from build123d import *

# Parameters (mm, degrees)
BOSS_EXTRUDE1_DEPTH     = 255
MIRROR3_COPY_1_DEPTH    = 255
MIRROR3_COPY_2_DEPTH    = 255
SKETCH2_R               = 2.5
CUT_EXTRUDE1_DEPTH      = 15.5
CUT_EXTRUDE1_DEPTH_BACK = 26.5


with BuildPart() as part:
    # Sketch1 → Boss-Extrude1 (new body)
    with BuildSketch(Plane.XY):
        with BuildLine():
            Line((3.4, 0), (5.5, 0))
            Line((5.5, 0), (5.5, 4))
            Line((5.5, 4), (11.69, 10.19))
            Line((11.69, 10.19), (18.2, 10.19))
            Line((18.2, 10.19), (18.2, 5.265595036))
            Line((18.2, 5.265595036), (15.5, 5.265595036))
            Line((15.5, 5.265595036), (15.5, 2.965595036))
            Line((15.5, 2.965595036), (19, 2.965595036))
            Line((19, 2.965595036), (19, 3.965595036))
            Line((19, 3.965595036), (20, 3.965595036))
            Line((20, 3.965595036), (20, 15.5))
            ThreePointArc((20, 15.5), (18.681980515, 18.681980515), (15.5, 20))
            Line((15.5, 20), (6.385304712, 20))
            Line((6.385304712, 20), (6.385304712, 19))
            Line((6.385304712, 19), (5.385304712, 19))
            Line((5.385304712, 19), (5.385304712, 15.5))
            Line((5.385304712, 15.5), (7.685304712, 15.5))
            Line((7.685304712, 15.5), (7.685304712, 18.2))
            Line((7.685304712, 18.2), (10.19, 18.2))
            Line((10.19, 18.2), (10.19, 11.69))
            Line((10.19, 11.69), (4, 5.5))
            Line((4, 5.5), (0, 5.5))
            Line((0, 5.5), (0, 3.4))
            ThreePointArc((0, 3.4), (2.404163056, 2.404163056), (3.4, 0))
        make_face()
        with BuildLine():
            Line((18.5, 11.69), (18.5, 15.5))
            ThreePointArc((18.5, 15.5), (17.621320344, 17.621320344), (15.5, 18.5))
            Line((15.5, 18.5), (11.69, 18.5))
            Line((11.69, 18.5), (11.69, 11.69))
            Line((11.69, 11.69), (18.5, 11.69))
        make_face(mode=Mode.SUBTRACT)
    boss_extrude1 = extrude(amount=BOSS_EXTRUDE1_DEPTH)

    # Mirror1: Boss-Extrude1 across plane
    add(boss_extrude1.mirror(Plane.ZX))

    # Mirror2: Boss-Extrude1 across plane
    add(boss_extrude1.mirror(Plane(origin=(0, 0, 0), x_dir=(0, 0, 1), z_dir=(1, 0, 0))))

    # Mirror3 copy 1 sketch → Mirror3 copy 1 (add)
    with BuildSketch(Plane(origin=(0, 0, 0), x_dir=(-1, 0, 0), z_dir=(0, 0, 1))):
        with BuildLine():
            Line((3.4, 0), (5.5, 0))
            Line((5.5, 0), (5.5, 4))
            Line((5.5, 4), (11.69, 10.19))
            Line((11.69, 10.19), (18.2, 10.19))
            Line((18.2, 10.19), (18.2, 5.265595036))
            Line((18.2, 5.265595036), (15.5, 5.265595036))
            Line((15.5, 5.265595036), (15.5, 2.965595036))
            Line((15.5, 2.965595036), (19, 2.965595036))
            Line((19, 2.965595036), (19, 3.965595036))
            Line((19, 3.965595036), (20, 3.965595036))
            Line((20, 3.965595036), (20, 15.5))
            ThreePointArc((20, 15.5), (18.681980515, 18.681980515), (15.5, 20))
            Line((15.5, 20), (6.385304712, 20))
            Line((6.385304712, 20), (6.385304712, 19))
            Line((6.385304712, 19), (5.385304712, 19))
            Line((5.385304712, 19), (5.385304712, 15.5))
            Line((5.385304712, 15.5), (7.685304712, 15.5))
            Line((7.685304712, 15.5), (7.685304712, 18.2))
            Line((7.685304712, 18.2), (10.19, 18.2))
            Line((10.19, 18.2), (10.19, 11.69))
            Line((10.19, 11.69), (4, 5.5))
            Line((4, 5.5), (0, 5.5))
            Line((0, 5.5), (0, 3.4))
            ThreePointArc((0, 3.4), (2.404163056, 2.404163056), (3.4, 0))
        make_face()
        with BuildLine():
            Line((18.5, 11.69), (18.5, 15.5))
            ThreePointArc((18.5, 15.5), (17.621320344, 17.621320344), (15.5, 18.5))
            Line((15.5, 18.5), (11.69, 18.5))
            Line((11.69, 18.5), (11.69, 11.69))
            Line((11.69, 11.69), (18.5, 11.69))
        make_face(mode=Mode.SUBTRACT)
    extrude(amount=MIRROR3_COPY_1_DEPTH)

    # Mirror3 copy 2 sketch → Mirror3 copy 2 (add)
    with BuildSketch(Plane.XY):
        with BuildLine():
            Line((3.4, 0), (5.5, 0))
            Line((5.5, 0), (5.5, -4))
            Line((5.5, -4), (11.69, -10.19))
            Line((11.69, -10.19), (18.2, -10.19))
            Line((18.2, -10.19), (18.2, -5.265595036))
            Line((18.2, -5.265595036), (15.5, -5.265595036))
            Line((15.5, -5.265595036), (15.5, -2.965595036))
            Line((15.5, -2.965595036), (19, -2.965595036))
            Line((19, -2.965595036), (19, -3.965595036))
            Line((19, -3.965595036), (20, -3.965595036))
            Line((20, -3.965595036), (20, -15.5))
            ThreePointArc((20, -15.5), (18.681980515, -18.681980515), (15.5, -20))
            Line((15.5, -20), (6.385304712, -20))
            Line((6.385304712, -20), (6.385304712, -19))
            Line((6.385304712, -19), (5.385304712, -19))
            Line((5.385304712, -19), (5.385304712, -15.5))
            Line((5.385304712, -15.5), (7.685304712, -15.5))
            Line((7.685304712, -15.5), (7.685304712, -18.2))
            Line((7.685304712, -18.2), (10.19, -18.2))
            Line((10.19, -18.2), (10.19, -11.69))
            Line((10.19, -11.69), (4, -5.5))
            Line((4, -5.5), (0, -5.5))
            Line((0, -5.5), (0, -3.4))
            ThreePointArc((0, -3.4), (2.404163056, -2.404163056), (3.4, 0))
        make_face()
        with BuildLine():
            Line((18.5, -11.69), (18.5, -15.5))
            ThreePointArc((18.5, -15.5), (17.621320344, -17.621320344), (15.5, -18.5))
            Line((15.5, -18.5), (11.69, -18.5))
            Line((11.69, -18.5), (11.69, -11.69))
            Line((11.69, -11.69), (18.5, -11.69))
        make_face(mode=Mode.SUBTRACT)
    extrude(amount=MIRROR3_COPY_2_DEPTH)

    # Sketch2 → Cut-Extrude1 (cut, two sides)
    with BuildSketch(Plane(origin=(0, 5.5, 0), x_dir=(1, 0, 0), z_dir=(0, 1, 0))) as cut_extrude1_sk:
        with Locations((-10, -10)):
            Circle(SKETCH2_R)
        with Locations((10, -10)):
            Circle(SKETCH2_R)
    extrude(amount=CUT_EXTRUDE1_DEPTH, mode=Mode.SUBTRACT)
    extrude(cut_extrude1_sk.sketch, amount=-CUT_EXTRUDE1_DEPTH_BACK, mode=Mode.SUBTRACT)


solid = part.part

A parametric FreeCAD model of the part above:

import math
import FreeCAD as App
import Part
import Sketcher
from FreeCAD import Vector
Q = App.Units.Quantity

doc = App.newDocument("Part")
params = doc.addObject("Spreadsheet::Sheet", "Params")
for row, (alias, value) in enumerate([
    ("sketch1_radius", "3 mm"),
    ("sketch1_radius2", "4.5 mm"),
    ("sketch1_radius3", "3.4 mm"),
    ("sketch1_width", "1 mm"),
    ("sketch1_width2", "4 mm"),
    ("pad1_length", "255 mm"),
    ("sketch2_radius", "3 mm"),
    ("sketch2_radius2", "4.5 mm"),
    ("sketch2_radius3", "3.4 mm"),
    ("sketch2_width", "1 mm"),
    ("sketch2_width2", "4 mm"),
    ("pad2_length", "255 mm"),
    ("sketch3_radius", "3 mm"),
    ("sketch3_radius2", "3.4 mm"),
    ("sketch3_radius3", "4.5 mm"),
    ("sketch3_width", "4 mm"),
    ("sketch3_width2", "1 mm"),
    ("pad3_length", "255 mm"),
    ("sketch4_diameter", "5 mm"),
], start=1):
    params.set(f"A{row}", alias)
    params.set(f"B{row}", "=" + value)
    params.setAlias(f"B{row}", alias)

body = doc.addObject("PartDesign::Body", "Body")

# Sketch on XY plane
sketch1 = body.newObject("Sketcher::SketchObject", "Sketch")
sketch1.AttachmentSupport = (doc.getObject("XY_Plane"), [""])
sketch1.MapMode = "FlatFace"
sketch1.addGeometry(Part.LineSegment(Vector(3.4, 0, 0), Vector(5.5, 0, 0)), False)
sketch1.addGeometry(Part.LineSegment(Vector(5.5, 0, 0), Vector(5.5, 4, 0)), False)
sketch1.addGeometry(Part.LineSegment(Vector(5.5, 4, 0), Vector(11.7, 10.2, 0)), False)
sketch1.addGeometry(Part.LineSegment(Vector(11.7, 10.2, 0), Vector(18.2, 10.2, 0)), False)
sketch1.addGeometry(Part.LineSegment(Vector(18.2, 10.2, 0), Vector(18.2, 5.3, 0)), False)
sketch1.addGeometry(Part.LineSegment(Vector(18.2, 5.3, 0), Vector(15.5, 5.3, 0)), False)
sketch1.addGeometry(Part.LineSegment(Vector(15.5, 5.3, 0), Vector(15.5, 3, 0)), False)
sketch1.addGeometry(Part.LineSegment(Vector(15.5, 3, 0), Vector(19, 3, 0)), False)
sketch1.addGeometry(Part.LineSegment(Vector(19, 3, 0), Vector(19, 4, 0)), False)
sketch1.addGeometry(Part.LineSegment(Vector(19, 4, 0), Vector(20, 4, 0)), False)
sketch1.addGeometry(Part.LineSegment(Vector(20, 4, 0), Vector(20, 15.5, 0)), False)
sketch1.addGeometry(Part.ArcOfCircle(Part.Circle(Vector(15.5, 15.5, 0), Vector(0, 0, 1), 4.5), math.radians(0), math.radians(90)), False)
sketch1.addGeometry(Part.LineSegment(Vector(15.5, 20, 0), Vector(6.4, 20, 0)), False)
sketch1.addGeometry(Part.LineSegment(Vector(6.4, 20, 0), Vector(6.4, 19, 0)), False)
sketch1.addGeometry(Part.LineSegment(Vector(6.4, 19, 0), Vector(5.4, 19, 0)), False)
sketch1.addGeometry(Part.LineSegment(Vector(5.4, 19, 0), Vector(5.4, 15.5, 0)), False)
sketch1.addGeometry(Part.LineSegment(Vector(5.4, 15.5, 0), Vector(7.7, 15.5, 0)), False)
sketch1.addGeometry(Part.LineSegment(Vector(7.7, 15.5, 0), Vector(7.7, 18.2, 0)), False)
sketch1.addGeometry(Part.LineSegment(Vector(7.7, 18.2, 0), Vector(10.2, 18.2, 0)), False)
sketch1.addGeometry(Part.LineSegment(Vector(10.2, 18.2, 0), Vector(10.2, 11.7, 0)), False)
sketch1.addGeometry(Part.LineSegment(Vector(10.2, 11.7, 0), Vector(4, 5.5, 0)), False)
sketch1.addGeometry(Part.LineSegment(Vector(4, 5.5, 0), Vector(0, 5.5, 0)), False)
sketch1.addGeometry(Part.LineSegment(Vector(0, 5.5, 0), Vector(0, 3.4, 0)), False)
sketch1.addGeometry(Part.ArcOfCircle(Part.Circle(Vector(0, 0, 0), Vector(0, 0, 1), 3.4), math.radians(0), math.radians(90)), False)
sketch1.addGeometry(Part.LineSegment(Vector(18.5, 15.5, 0), Vector(18.5, 11.7, 0)), False)
sketch1.addGeometry(Part.LineSegment(Vector(18.5, 11.7, 0), Vector(11.7, 11.7, 0)), False)
sketch1.addGeometry(Part.LineSegment(Vector(11.7, 11.7, 0), Vector(11.7, 18.5, 0)), False)
sketch1.addGeometry(Part.LineSegment(Vector(11.7, 18.5, 0), Vector(15.5, 18.5, 0)), False)
sketch1.addGeometry(Part.ArcOfCircle(Part.Circle(Vector(15.5, 15.5, 0), Vector(0, 0, 1), 3), math.radians(0), math.radians(90)), False)
sketch1.addConstraint(Sketcher.Constraint("Coincident", 0, 2, 1, 1))
sketch1.addConstraint(Sketcher.Constraint("Coincident", 1, 2, 2, 1))
sketch1.addConstraint(Sketcher.Constraint("Coincident", 2, 2, 3, 1))
sketch1.addConstraint(Sketcher.Constraint("Coincident", 3, 2, 4, 1))
sketch1.addConstraint(Sketcher.Constraint("Coincident", 4, 2, 5, 1))
sketch1.addConstraint(Sketcher.Constraint("Coincident", 5, 2, 6, 1))
sketch1.addConstraint(Sketcher.Constraint("Coincident", 6, 2, 7, 1))
sketch1.addConstraint(Sketcher.Constraint("Coincident", 7, 2, 8, 1))
sketch1.addConstraint(Sketcher.Constraint("Coincident", 8, 2, 9, 1))
sketch1.addConstraint(Sketcher.Constraint("Coincident", 9, 2, 10, 1))
sketch1.addConstraint(Sketcher.Constraint("Tangent", 10, 2, 11, 1))
sketch1.addConstraint(Sketcher.Constraint("Tangent", 11, 2, 12, 1))
sketch1.addConstraint(Sketcher.Constraint("Coincident", 12, 2, 13, 1))
sketch1.addConstraint(Sketcher.Constraint("Coincident", 13, 2, 14, 1))
sketch1.addConstraint(Sketcher.Constraint("Coincident", 14, 2, 15, 1))
sketch1.addConstraint(Sketcher.Constraint("Coincident", 15, 2, 16, 1))
sketch1.addConstraint(Sketcher.Constraint("Coincident", 16, 2, 17, 1))
sketch1.addConstraint(Sketcher.Constraint("Coincident", 17, 2, 18, 1))
sketch1.addConstraint(Sketcher.Constraint("Coincident", 18, 2, 19, 1))
sketch1.addConstraint(Sketcher.Constraint("Coincident", 19, 2, 20, 1))
sketch1.addConstraint(Sketcher.Constraint("Coincident", 20, 2, 21, 1))
sketch1.addConstraint(Sketcher.Constraint("Coincident", 21, 2, 22, 1))
sketch1.addConstraint(Sketcher.Constraint("Coincident", 22, 2, 23, 2))
sketch1.addConstraint(Sketcher.Constraint("Coincident", 23, 1, 0, 1))
sketch1.addConstraint(Sketcher.Constraint("Coincident", 24, 2, 25, 1))
sketch1.addConstraint(Sketcher.Constraint("Coincident", 25, 2, 26, 1))
sketch1.addConstraint(Sketcher.Constraint("Coincident", 26, 2, 27, 1))
sketch1.addConstraint(Sketcher.Constraint("Tangent", 27, 2, 28, 2))
sketch1.addConstraint(Sketcher.Constraint("Tangent", 28, 1, 24, 1))
sketch1.addConstraint(Sketcher.Constraint("Horizontal", 0))
sketch1.addConstraint(Sketcher.Constraint("Vertical", 1))
sketch1.addConstraint(Sketcher.Constraint("Horizontal", 3))
sketch1.addConstraint(Sketcher.Constraint("Vertical", 4))
sketch1.addConstraint(Sketcher.Constraint("Horizontal", 5))
sketch1.addConstraint(Sketcher.Constraint("Vertical", 6))
sketch1.addConstraint(Sketcher.Constraint("Horizontal", 7))
sketch1.addConstraint(Sketcher.Constraint("Vertical", 8))
sketch1.addConstraint(Sketcher.Constraint("Horizontal", 9))
sketch1.addConstraint(Sketcher.Constraint("Vertical", 10))
sketch1.addConstraint(Sketcher.Constraint("Horizontal", 12))
sketch1.addConstraint(Sketcher.Constraint("Vertical", 13))
sketch1.addConstraint(Sketcher.Constraint("Horizontal", 14))
sketch1.addConstraint(Sketcher.Constraint("Vertical", 15))
sketch1.addConstraint(Sketcher.Constraint("Horizontal", 16))
sketch1.addConstraint(Sketcher.Constraint("Vertical", 17))
sketch1.addConstraint(Sketcher.Constraint("Horizontal", 18))
sketch1.addConstraint(Sketcher.Constraint("Vertical", 19))
sketch1.addConstraint(Sketcher.Constraint("Horizontal", 21))
sketch1.addConstraint(Sketcher.Constraint("Vertical", 22))
sketch1.addConstraint(Sketcher.Constraint("Vertical", 24))
sketch1.addConstraint(Sketcher.Constraint("Horizontal", 25))
sketch1.addConstraint(Sketcher.Constraint("Vertical", 26))
sketch1.addConstraint(Sketcher.Constraint("Horizontal", 27))
sketch1.addConstraint(Sketcher.Constraint("Coincident", 23, 3, -1, 1))
sketch1.addConstraint(Sketcher.Constraint("Coincident", 28, 3, 11, 3))
sketch1.addConstraint(Sketcher.Constraint("PointOnObject", 0, 2, -1))
sketch1.addConstraint(Sketcher.Constraint("PointOnObject", 21, 2, -2))
sketch1.addConstraint(Sketcher.Constraint("Parallel", 2, 20))
sketch1.addConstraint(Sketcher.Constraint("Horizontal", 10, 2, 15, 2))
sketch1.addConstraint(Sketcher.Constraint("Horizontal", 19, 2, 24, 2))
sketch1.addConstraint(Sketcher.Constraint("Vertical", 28, 3, 5, 2))
sketch1.addConstraint(Sketcher.Constraint("Vertical", 2, 2, 25, 2))
sketch1.addConstraint(Sketcher.Constraint("Equal", 9, 14))
sketch1.addConstraint(Sketcher.Constraint("Equal", 21, 1))
sketch1.addConstraint(Sketcher.Constraint("Equal", 16, 6))
sketch1.addConstraint(Sketcher.Constraint("Equal", 14, 8))
sketch1.addConstraint(Sketcher.Constraint("Equal", 8, 13))
sketch1.addConstraint(Sketcher.Constraint("Equal", 5, 17))
sketch1.addConstraint(Sketcher.Constraint("Equal", 3, 19))
sketch1.addConstraint(Sketcher.Constraint("Equal", 0, 22))
sketch1.addConstraint(Sketcher.Constraint("Equal", 2, 20))
sketch1.addConstraint(Sketcher.Constraint("Radius", 28, Q("3 mm")))
sketch1.addConstraint(Sketcher.Constraint("Radius", 11, Q("4.5 mm")))
sketch1.addConstraint(Sketcher.Constraint("Radius", 23, Q("3.4 mm")))
sketch1.addConstraint(Sketcher.Constraint("DistanceX", 9, 1, 9, 2, Q("1 mm")))
sketch1.addConstraint(Sketcher.Constraint("DistanceX", 21, 2, 21, 1, Q("4 mm")))
sketch1.addConstraint(Sketcher.Constraint("Angle", 2, Q("45 deg")))
sketch1.addConstraint(Sketcher.Constraint("DistanceX", 0, 1, 0, 2, Q("2.1 mm")))
sketch1.addConstraint(Sketcher.Constraint("DistanceX", 5, 2, 5, 1, Q("2.7 mm")))
sketch1.addConstraint(Sketcher.Constraint("DistanceX", 16, 1, 16, 2, Q("2.3 mm")))
sketch1.addConstraint(Sketcher.Constraint("DistanceX", -1, 1, 7, 2, Q("19 mm")))
sketch1.addConstraint(Sketcher.Constraint("DistanceX", 3, 1, 3, 2, Q("6.51 mm")))
sketch1.addConstraint(Sketcher.Constraint("DistanceX", 12, 2, 12, 1, Q("9.114695 mm")))
sketch1.addConstraint(Sketcher.Constraint("DistanceY", 4, 2, 4, 1, Q("4.924405 mm")))
sketch1.setExpression("Constraints[71]", "Params.sketch1_radius")
sketch1.setExpression("Constraints[72]", "Params.sketch1_radius2")
sketch1.setExpression("Constraints[73]", "Params.sketch1_radius3")
sketch1.setExpression("Constraints[74]", "Params.sketch1_width")
sketch1.setExpression("Constraints[75]", "Params.sketch1_width2")
pad1 = body.newObject("PartDesign::Pad", "Pad")
pad1.Profile = sketch1
pad1.setExpression("Length", "Params.pad1_length")
doc.recompute()

mirrored = body.newObject("PartDesign::Mirrored", "Mirrored")
mirrored.Originals = [pad1]
mirrored.MirrorPlane = (doc.getObject("XZ_Plane"), [""])
body.Tip = mirrored
doc.recompute()

mirrored2 = body.newObject("PartDesign::Mirrored", "Mirrored001")
mirrored2.Originals = [pad1]
mirrored2.MirrorPlane = (doc.getObject("YZ_Plane"), [""])
body.Tip = mirrored2

# Sketch on XY plane
sketch2 = body.newObject("Sketcher::SketchObject", "Sketch001")
sketch2.AttachmentSupport = (doc.getObject("XY_Plane"), [""])
sketch2.MapMode = "FlatFace"
sketch2.addGeometry(Part.LineSegment(Vector(-3.4, 0, 0), Vector(-5.5, 0, 0)), False)
sketch2.addGeometry(Part.LineSegment(Vector(-5.5, 0, 0), Vector(-5.5, -4, 0)), False)
sketch2.addGeometry(Part.LineSegment(Vector(-5.5, -4, 0), Vector(-11.7, -10.2, 0)), False)
sketch2.addGeometry(Part.LineSegment(Vector(-11.7, -10.2, 0), Vector(-18.2, -10.2, 0)), False)
sketch2.addGeometry(Part.LineSegment(Vector(-18.2, -10.2, 0), Vector(-18.2, -5.3, 0)), False)
sketch2.addGeometry(Part.LineSegment(Vector(-18.2, -5.3, 0), Vector(-15.5, -5.3, 0)), False)
sketch2.addGeometry(Part.LineSegment(Vector(-15.5, -5.3, 0), Vector(-15.5, -3, 0)), False)
sketch2.addGeometry(Part.LineSegment(Vector(-15.5, -3, 0), Vector(-19, -3, 0)), False)
sketch2.addGeometry(Part.LineSegment(Vector(-19, -3, 0), Vector(-19, -4, 0)), False)
sketch2.addGeometry(Part.LineSegment(Vector(-19, -4, 0), Vector(-20, -4, 0)), False)
sketch2.addGeometry(Part.LineSegment(Vector(-20, -4, 0), Vector(-20, -15.5, 0)), False)
sketch2.addGeometry(Part.ArcOfCircle(Part.Circle(Vector(-15.5, -15.5, 0), Vector(0, 0, 1), 4.5), math.radians(-180), math.radians(-90)), False)
sketch2.addGeometry(Part.LineSegment(Vector(-15.5, -20, 0), Vector(-6.4, -20, 0)), False)
sketch2.addGeometry(Part.LineSegment(Vector(-6.4, -20, 0), Vector(-6.4, -19, 0)), False)
sketch2.addGeometry(Part.LineSegment(Vector(-6.4, -19, 0), Vector(-5.4, -19, 0)), False)
sketch2.addGeometry(Part.LineSegment(Vector(-5.4, -19, 0), Vector(-5.4, -15.5, 0)), False)
sketch2.addGeometry(Part.LineSegment(Vector(-5.4, -15.5, 0), Vector(-7.7, -15.5, 0)), False)
sketch2.addGeometry(Part.LineSegment(Vector(-7.7, -15.5, 0), Vector(-7.7, -18.2, 0)), False)
sketch2.addGeometry(Part.LineSegment(Vector(-7.7, -18.2, 0), Vector(-10.2, -18.2, 0)), False)
sketch2.addGeometry(Part.LineSegment(Vector(-10.2, -18.2, 0), Vector(-10.2, -11.7, 0)), False)
sketch2.addGeometry(Part.LineSegment(Vector(-10.2, -11.7, 0), Vector(-4, -5.5, 0)), False)
sketch2.addGeometry(Part.LineSegment(Vector(-4, -5.5, 0), Vector(0, -5.5, 0)), False)
sketch2.addGeometry(Part.LineSegment(Vector(0, -5.5, 0), Vector(0, -3.4, 0)), False)
sketch2.addGeometry(Part.ArcOfCircle(Part.Circle(Vector(0, 0, 0), Vector(0, 0, 1), 3.4), math.radians(180), math.radians(270)), False)
sketch2.addGeometry(Part.LineSegment(Vector(-18.5, -15.5, 0), Vector(-18.5, -11.7, 0)), False)
sketch2.addGeometry(Part.LineSegment(Vector(-18.5, -11.7, 0), Vector(-11.7, -11.7, 0)), False)
sketch2.addGeometry(Part.LineSegment(Vector(-11.7, -11.7, 0), Vector(-11.7, -18.5, 0)), False)
sketch2.addGeometry(Part.LineSegment(Vector(-11.7, -18.5, 0), Vector(-15.5, -18.5, 0)), False)
sketch2.addGeometry(Part.ArcOfCircle(Part.Circle(Vector(-15.5, -15.5, 0), Vector(0, 0, 1), 3), math.radians(180), math.radians(270)), False)
sketch2.addConstraint(Sketcher.Constraint("Coincident", 0, 2, 1, 1))
sketch2.addConstraint(Sketcher.Constraint("Coincident", 1, 2, 2, 1))
sketch2.addConstraint(Sketcher.Constraint("Coincident", 2, 2, 3, 1))
sketch2.addConstraint(Sketcher.Constraint("Coincident", 3, 2, 4, 1))
sketch2.addConstraint(Sketcher.Constraint("Coincident", 4, 2, 5, 1))
sketch2.addConstraint(Sketcher.Constraint("Coincident", 5, 2, 6, 1))
sketch2.addConstraint(Sketcher.Constraint("Coincident", 6, 2, 7, 1))
sketch2.addConstraint(Sketcher.Constraint("Coincident", 7, 2, 8, 1))
sketch2.addConstraint(Sketcher.Constraint("Coincident", 8, 2, 9, 1))
sketch2.addConstraint(Sketcher.Constraint("Coincident", 9, 2, 10, 1))
sketch2.addConstraint(Sketcher.Constraint("Tangent", 10, 2, 11, 1))
sketch2.addConstraint(Sketcher.Constraint("Tangent", 11, 2, 12, 1))
sketch2.addConstraint(Sketcher.Constraint("Coincident", 12, 2, 13, 1))
sketch2.addConstraint(Sketcher.Constraint("Coincident", 13, 2, 14, 1))
sketch2.addConstraint(Sketcher.Constraint("Coincident", 14, 2, 15, 1))
sketch2.addConstraint(Sketcher.Constraint("Coincident", 15, 2, 16, 1))
sketch2.addConstraint(Sketcher.Constraint("Coincident", 16, 2, 17, 1))
sketch2.addConstraint(Sketcher.Constraint("Coincident", 17, 2, 18, 1))
sketch2.addConstraint(Sketcher.Constraint("Coincident", 18, 2, 19, 1))
sketch2.addConstraint(Sketcher.Constraint("Coincident", 19, 2, 20, 1))
sketch2.addConstraint(Sketcher.Constraint("Coincident", 20, 2, 21, 1))
sketch2.addConstraint(Sketcher.Constraint("Coincident", 21, 2, 22, 1))
sketch2.addConstraint(Sketcher.Constraint("Coincident", 22, 2, 23, 2))
sketch2.addConstraint(Sketcher.Constraint("Coincident", 23, 1, 0, 1))
sketch2.addConstraint(Sketcher.Constraint("Coincident", 24, 2, 25, 1))
sketch2.addConstraint(Sketcher.Constraint("Coincident", 25, 2, 26, 1))
sketch2.addConstraint(Sketcher.Constraint("Coincident", 26, 2, 27, 1))
sketch2.addConstraint(Sketcher.Constraint("Tangent", 27, 2, 28, 2))
sketch2.addConstraint(Sketcher.Constraint("Tangent", 28, 1, 24, 1))
sketch2.addConstraint(Sketcher.Constraint("Horizontal", 0))
sketch2.addConstraint(Sketcher.Constraint("Vertical", 1))
sketch2.addConstraint(Sketcher.Constraint("Horizontal", 3))
sketch2.addConstraint(Sketcher.Constraint("Vertical", 4))
sketch2.addConstraint(Sketcher.Constraint("Horizontal", 5))
sketch2.addConstraint(Sketcher.Constraint("Vertical", 6))
sketch2.addConstraint(Sketcher.Constraint("Horizontal", 7))
sketch2.addConstraint(Sketcher.Constraint("Vertical", 8))
sketch2.addConstraint(Sketcher.Constraint("Horizontal", 9))
sketch2.addConstraint(Sketcher.Constraint("Vertical", 10))
sketch2.addConstraint(Sketcher.Constraint("Horizontal", 12))
sketch2.addConstraint(Sketcher.Constraint("Vertical", 13))
sketch2.addConstraint(Sketcher.Constraint("Horizontal", 14))
sketch2.addConstraint(Sketcher.Constraint("Vertical", 15))
sketch2.addConstraint(Sketcher.Constraint("Horizontal", 16))
sketch2.addConstraint(Sketcher.Constraint("Vertical", 17))
sketch2.addConstraint(Sketcher.Constraint("Horizontal", 18))
sketch2.addConstraint(Sketcher.Constraint("Vertical", 19))
sketch2.addConstraint(Sketcher.Constraint("Horizontal", 21))
sketch2.addConstraint(Sketcher.Constraint("Vertical", 22))
sketch2.addConstraint(Sketcher.Constraint("Vertical", 24))
sketch2.addConstraint(Sketcher.Constraint("Horizontal", 25))
sketch2.addConstraint(Sketcher.Constraint("Vertical", 26))
sketch2.addConstraint(Sketcher.Constraint("Horizontal", 27))
sketch2.addConstraint(Sketcher.Constraint("Coincident", 23, 3, -1, 1))
sketch2.addConstraint(Sketcher.Constraint("Coincident", 28, 3, 11, 3))
sketch2.addConstraint(Sketcher.Constraint("PointOnObject", 0, 2, -1))
sketch2.addConstraint(Sketcher.Constraint("PointOnObject", 21, 2, -2))
sketch2.addConstraint(Sketcher.Constraint("Parallel", 2, 20))
sketch2.addConstraint(Sketcher.Constraint("Horizontal", 10, 2, 15, 2))
sketch2.addConstraint(Sketcher.Constraint("Horizontal", 19, 2, 24, 2))
sketch2.addConstraint(Sketcher.Constraint("Vertical", 28, 3, 5, 2))
sketch2.addConstraint(Sketcher.Constraint("Vertical", 2, 2, 25, 2))
sketch2.addConstraint(Sketcher.Constraint("Equal", 9, 14))
sketch2.addConstraint(Sketcher.Constraint("Equal", 21, 1))
sketch2.addConstraint(Sketcher.Constraint("Equal", 16, 6))
sketch2.addConstraint(Sketcher.Constraint("Equal", 14, 8))
sketch2.addConstraint(Sketcher.Constraint("Equal", 8, 13))
sketch2.addConstraint(Sketcher.Constraint("Equal", 5, 17))
sketch2.addConstraint(Sketcher.Constraint("Equal", 3, 19))
sketch2.addConstraint(Sketcher.Constraint("Equal", 0, 22))
sketch2.addConstraint(Sketcher.Constraint("Equal", 2, 20))
sketch2.addConstraint(Sketcher.Constraint("Radius", 28, Q("3 mm")))
sketch2.addConstraint(Sketcher.Constraint("Radius", 11, Q("4.5 mm")))
sketch2.addConstraint(Sketcher.Constraint("Radius", 23, Q("3.4 mm")))
sketch2.addConstraint(Sketcher.Constraint("DistanceX", 9, 2, 9, 1, Q("1 mm")))
sketch2.addConstraint(Sketcher.Constraint("DistanceX", 21, 1, 21, 2, Q("4 mm")))
sketch2.addConstraint(Sketcher.Constraint("Angle", 2, Q("-135 deg")))
sketch2.addConstraint(Sketcher.Constraint("DistanceX", 0, 2, 0, 1, Q("2.1 mm")))
sketch2.addConstraint(Sketcher.Constraint("DistanceX", 5, 1, 5, 2, Q("2.7 mm")))
sketch2.addConstraint(Sketcher.Constraint("DistanceX", 16, 2, 16, 1, Q("2.3 mm")))
sketch2.addConstraint(Sketcher.Constraint("DistanceX", 7, 2, -1, 1, Q("19 mm")))
sketch2.addConstraint(Sketcher.Constraint("DistanceX", 3, 2, 3, 1, Q("6.51 mm")))
sketch2.addConstraint(Sketcher.Constraint("DistanceX", 12, 1, 12, 2, Q("9.114695 mm")))
sketch2.addConstraint(Sketcher.Constraint("DistanceY", 4, 1, 4, 2, Q("4.924405 mm")))
sketch2.setExpression("Constraints[71]", "Params.sketch2_radius")
sketch2.setExpression("Constraints[72]", "Params.sketch2_radius2")
sketch2.setExpression("Constraints[73]", "Params.sketch2_radius3")
sketch2.setExpression("Constraints[74]", "Params.sketch2_width")
sketch2.setExpression("Constraints[75]", "Params.sketch2_width2")
pad2 = body.newObject("PartDesign::Pad", "Pad001")
pad2.Profile = sketch2
pad2.setExpression("Length", "Params.pad2_length")

# Sketch on XY plane
sketch3 = body.newObject("Sketcher::SketchObject", "Sketch002")
sketch3.AttachmentSupport = (doc.getObject("XY_Plane"), [""])
sketch3.MapMode = "FlatFace"
sketch3.addGeometry(Part.LineSegment(Vector(5.5, 0, 0), Vector(3.4, 0, 0)), False)
sketch3.addGeometry(Part.ArcOfCircle(Part.Circle(Vector(0, 0, 0), Vector(0, 0, 1), 3.4), math.radians(-90), math.radians(0)), False)
sketch3.addGeometry(Part.LineSegment(Vector(0, -3.4, 0), Vector(0, -5.5, 0)), False)
sketch3.addGeometry(Part.LineSegment(Vector(0, -5.5, 0), Vector(4, -5.5, 0)), False)
sketch3.addGeometry(Part.LineSegment(Vector(4, -5.5, 0), Vector(10.2, -11.7, 0)), False)
sketch3.addGeometry(Part.LineSegment(Vector(10.2, -11.7, 0), Vector(10.2, -18.2, 0)), False)
sketch3.addGeometry(Part.LineSegment(Vector(10.2, -18.2, 0), Vector(7.7, -18.2, 0)), False)
sketch3.addGeometry(Part.LineSegment(Vector(7.7, -18.2, 0), Vector(7.7, -15.5, 0)), False)
sketch3.addGeometry(Part.LineSegment(Vector(7.7, -15.5, 0), Vector(5.4, -15.5, 0)), False)
sketch3.addGeometry(Part.LineSegment(Vector(5.4, -15.5, 0), Vector(5.4, -19, 0)), False)
sketch3.addGeometry(Part.LineSegment(Vector(5.4, -19, 0), Vector(6.4, -19, 0)), False)
sketch3.addGeometry(Part.LineSegment(Vector(6.4, -19, 0), Vector(6.4, -20, 0)), False)
sketch3.addGeometry(Part.LineSegment(Vector(6.4, -20, 0), Vector(15.5, -20, 0)), False)
sketch3.addGeometry(Part.ArcOfCircle(Part.Circle(Vector(15.5, -15.5, 0), Vector(0, 0, 1), 4.5), math.radians(-90), math.radians(0)), False)
sketch3.addGeometry(Part.LineSegment(Vector(20, -15.5, 0), Vector(20, -4, 0)), False)
sketch3.addGeometry(Part.LineSegment(Vector(20, -4, 0), Vector(19, -4, 0)), False)
sketch3.addGeometry(Part.LineSegment(Vector(19, -4, 0), Vector(19, -3, 0)), False)
sketch3.addGeometry(Part.LineSegment(Vector(19, -3, 0), Vector(15.5, -3, 0)), False)
sketch3.addGeometry(Part.LineSegment(Vector(15.5, -3, 0), Vector(15.5, -5.3, 0)), False)
sketch3.addGeometry(Part.LineSegment(Vector(15.5, -5.3, 0), Vector(18.2, -5.3, 0)), False)
sketch3.addGeometry(Part.LineSegment(Vector(18.2, -5.3, 0), Vector(18.2, -10.2, 0)), False)
sketch3.addGeometry(Part.LineSegment(Vector(18.2, -10.2, 0), Vector(11.7, -10.2, 0)), False)
sketch3.addGeometry(Part.LineSegment(Vector(11.7, -10.2, 0), Vector(5.5, -4, 0)), False)
sketch3.addGeometry(Part.LineSegment(Vector(5.5, -4, 0), Vector(5.5, 0, 0)), False)
sketch3.addGeometry(Part.LineSegment(Vector(18.5, -11.7, 0), Vector(18.5, -15.5, 0)), False)
sketch3.addGeometry(Part.ArcOfCircle(Part.Circle(Vector(15.5, -15.5, 0), Vector(0, 0, 1), 3), math.radians(-90), math.radians(0)), False)
sketch3.addGeometry(Part.LineSegment(Vector(15.5, -18.5, 0), Vector(11.7, -18.5, 0)), False)
sketch3.addGeometry(Part.LineSegment(Vector(11.7, -18.5, 0), Vector(11.7, -11.7, 0)), False)
sketch3.addGeometry(Part.LineSegment(Vector(11.7, -11.7, 0), Vector(18.5, -11.7, 0)), False)
sketch3.addConstraint(Sketcher.Constraint("Coincident", 0, 2, 1, 2))
sketch3.addConstraint(Sketcher.Constraint("Coincident", 1, 1, 2, 1))
sketch3.addConstraint(Sketcher.Constraint("Coincident", 2, 2, 3, 1))
sketch3.addConstraint(Sketcher.Constraint("Coincident", 3, 2, 4, 1))
sketch3.addConstraint(Sketcher.Constraint("Coincident", 4, 2, 5, 1))
sketch3.addConstraint(Sketcher.Constraint("Coincident", 5, 2, 6, 1))
sketch3.addConstraint(Sketcher.Constraint("Coincident", 6, 2, 7, 1))
sketch3.addConstraint(Sketcher.Constraint("Coincident", 7, 2, 8, 1))
sketch3.addConstraint(Sketcher.Constraint("Coincident", 8, 2, 9, 1))
sketch3.addConstraint(Sketcher.Constraint("Coincident", 9, 2, 10, 1))
sketch3.addConstraint(Sketcher.Constraint("Coincident", 10, 2, 11, 1))
sketch3.addConstraint(Sketcher.Constraint("Coincident", 11, 2, 12, 1))
sketch3.addConstraint(Sketcher.Constraint("Tangent", 12, 2, 13, 1))
sketch3.addConstraint(Sketcher.Constraint("Tangent", 13, 2, 14, 1))
sketch3.addConstraint(Sketcher.Constraint("Coincident", 14, 2, 15, 1))
sketch3.addConstraint(Sketcher.Constraint("Coincident", 15, 2, 16, 1))
sketch3.addConstraint(Sketcher.Constraint("Coincident", 16, 2, 17, 1))
sketch3.addConstraint(Sketcher.Constraint("Coincident", 17, 2, 18, 1))
sketch3.addConstraint(Sketcher.Constraint("Coincident", 18, 2, 19, 1))
sketch3.addConstraint(Sketcher.Constraint("Coincident", 19, 2, 20, 1))
sketch3.addConstraint(Sketcher.Constraint("Coincident", 20, 2, 21, 1))
sketch3.addConstraint(Sketcher.Constraint("Coincident", 21, 2, 22, 1))
sketch3.addConstraint(Sketcher.Constraint("Coincident", 22, 2, 23, 1))
sketch3.addConstraint(Sketcher.Constraint("Coincident", 23, 2, 0, 1))
sketch3.addConstraint(Sketcher.Constraint("Tangent", 24, 2, 25, 2))
sketch3.addConstraint(Sketcher.Constraint("Tangent", 25, 1, 26, 1))
sketch3.addConstraint(Sketcher.Constraint("Coincident", 26, 2, 27, 1))
sketch3.addConstraint(Sketcher.Constraint("Coincident", 27, 2, 28, 1))
sketch3.addConstraint(Sketcher.Constraint("Coincident", 28, 2, 24, 1))
sketch3.addConstraint(Sketcher.Constraint("Horizontal", 0))
sketch3.addConstraint(Sketcher.Constraint("Vertical", 2))
sketch3.addConstraint(Sketcher.Constraint("Horizontal", 3))
sketch3.addConstraint(Sketcher.Constraint("Vertical", 5))
sketch3.addConstraint(Sketcher.Constraint("Horizontal", 6))
sketch3.addConstraint(Sketcher.Constraint("Vertical", 7))
sketch3.addConstraint(Sketcher.Constraint("Horizontal", 8))
sketch3.addConstraint(Sketcher.Constraint("Vertical", 9))
sketch3.addConstraint(Sketcher.Constraint("Horizontal", 10))
sketch3.addConstraint(Sketcher.Constraint("Vertical", 11))
sketch3.addConstraint(Sketcher.Constraint("Horizontal", 12))
sketch3.addConstraint(Sketcher.Constraint("Vertical", 14))
sketch3.addConstraint(Sketcher.Constraint("Horizontal", 15))
sketch3.addConstraint(Sketcher.Constraint("Vertical", 16))
sketch3.addConstraint(Sketcher.Constraint("Horizontal", 17))
sketch3.addConstraint(Sketcher.Constraint("Vertical", 18))
sketch3.addConstraint(Sketcher.Constraint("Horizontal", 19))
sketch3.addConstraint(Sketcher.Constraint("Vertical", 20))
sketch3.addConstraint(Sketcher.Constraint("Horizontal", 21))
sketch3.addConstraint(Sketcher.Constraint("Vertical", 23))
sketch3.addConstraint(Sketcher.Constraint("Vertical", 24))
sketch3.addConstraint(Sketcher.Constraint("Horizontal", 26))
sketch3.addConstraint(Sketcher.Constraint("Vertical", 27))
sketch3.addConstraint(Sketcher.Constraint("Horizontal", 28))
sketch3.addConstraint(Sketcher.Constraint("Coincident", 1, 3, -1, 1))
sketch3.addConstraint(Sketcher.Constraint("Coincident", 25, 3, 13, 3))
sketch3.addConstraint(Sketcher.Constraint("PointOnObject", 0, 2, -1))
sketch3.addConstraint(Sketcher.Constraint("PointOnObject", 1, 1, -2))
sketch3.addConstraint(Sketcher.Constraint("Parallel", 4, 22))
sketch3.addConstraint(Sketcher.Constraint("Horizontal", 25, 3, 7, 2))
sketch3.addConstraint(Sketcher.Constraint("Horizontal", 4, 2, 27, 2))
sketch3.addConstraint(Sketcher.Constraint("Vertical", 12, 2, 17, 2))
sketch3.addConstraint(Sketcher.Constraint("Vertical", 21, 2, 26, 2))
sketch3.addConstraint(Sketcher.Constraint("Equal", 10, 15))
sketch3.addConstraint(Sketcher.Constraint("Equal", 0, 2))
sketch3.addConstraint(Sketcher.Constraint("Equal", 21, 5))
sketch3.addConstraint(Sketcher.Constraint("Equal", 19, 7))
sketch3.addConstraint(Sketcher.Constraint("Equal", 17, 9))
sketch3.addConstraint(Sketcher.Constraint("Equal", 11, 16))
sketch3.addConstraint(Sketcher.Constraint("Equal", 8, 18))
sketch3.addConstraint(Sketcher.Constraint("Equal", 3, 23))
sketch3.addConstraint(Sketcher.Constraint("Equal", 4, 22))
sketch3.addConstraint(Sketcher.Constraint("Radius", 25, Q("3 mm")))
sketch3.addConstraint(Sketcher.Constraint("Radius", 1, Q("3.4 mm")))
sketch3.addConstraint(Sketcher.Constraint("Radius", 13, Q("4.5 mm")))
sketch3.addConstraint(Sketcher.Constraint("DistanceX", 3, 1, 3, 2, Q("4 mm")))
sketch3.addConstraint(Sketcher.Constraint("DistanceX", 10, 1, 10, 2, Q("1 mm")))
sketch3.addConstraint(Sketcher.Constraint("Angle", 4, Q("-45 deg")))
sketch3.addConstraint(Sketcher.Constraint("DistanceX", 0, 2, 0, 1, Q("2.1 mm")))
sketch3.addConstraint(Sketcher.Constraint("DistanceX", 8, 2, 8, 1, Q("2.3 mm")))
sketch3.addConstraint(Sketcher.Constraint("DistanceX", 19, 1, 19, 2, Q("2.7 mm")))
sketch3.addConstraint(Sketcher.Constraint("DistanceY", 9, 2, -1, 1, Q("19 mm")))
sketch3.addConstraint(Sketcher.Constraint("DistanceX", 21, 2, 21, 1, Q("6.51 mm")))
sketch3.addConstraint(Sketcher.Constraint("DistanceX", 6, 2, 6, 1, Q("2.504695 mm")))
sketch3.addConstraint(Sketcher.Constraint("DistanceY", 14, 1, 14, 2, Q("11.534405 mm")))
sketch3.setExpression("Constraints[71]", "Params.sketch3_radius")
sketch3.setExpression("Constraints[72]", "Params.sketch3_radius2")
sketch3.setExpression("Constraints[73]", "Params.sketch3_radius3")
sketch3.setExpression("Constraints[74]", "Params.sketch3_width")
sketch3.setExpression("Constraints[75]", "Params.sketch3_width2")
pad3 = body.newObject("PartDesign::Pad", "Pad002")
pad3.Profile = sketch3
pad3.setExpression("Length", "Params.pad3_length")

# Sketch on XZ plane
sketch4 = body.newObject("Sketcher::SketchObject", "Sketch003")
sketch4.AttachmentSupport = (doc.getObject("XZ_Plane"), [""])
sketch4.MapMode = "FlatFace"
sketch4.AttachmentOffset = App.Placement(Vector(0, 0, -5.5), App.Rotation())
sketch4.addGeometry(Part.Circle(Vector(-10, 10, 0), Vector(0, 0, 1), 2.5), False)
sketch4.addGeometry(Part.Circle(Vector(10, 10, 0), Vector(0, 0, 1), 2.5), False)
sketch4.addConstraint(Sketcher.Constraint("Equal", 0, 1))
sketch4.addConstraint(Sketcher.Constraint("Symmetric", 0, 3, 1, 3, -2))
sketch4.addConstraint(Sketcher.Constraint("Diameter", 0, Q("5 mm")))
sketch4.addConstraint(Sketcher.Constraint("DistanceX", 0, 3, -1, 1, Q("10 mm")))
sketch4.addConstraint(Sketcher.Constraint("DistanceY", -1, 1, 0, 3, Q("10 mm")))
sketch4.setExpression("Constraints[2]", "Params.sketch4_diameter")
pocket1 = body.newObject("PartDesign::Pocket", "Pocket")
pocket1.Profile = sketch4
pocket1.Type = "ThroughAll"
pocket1.Midplane = True

doc.recompute()
